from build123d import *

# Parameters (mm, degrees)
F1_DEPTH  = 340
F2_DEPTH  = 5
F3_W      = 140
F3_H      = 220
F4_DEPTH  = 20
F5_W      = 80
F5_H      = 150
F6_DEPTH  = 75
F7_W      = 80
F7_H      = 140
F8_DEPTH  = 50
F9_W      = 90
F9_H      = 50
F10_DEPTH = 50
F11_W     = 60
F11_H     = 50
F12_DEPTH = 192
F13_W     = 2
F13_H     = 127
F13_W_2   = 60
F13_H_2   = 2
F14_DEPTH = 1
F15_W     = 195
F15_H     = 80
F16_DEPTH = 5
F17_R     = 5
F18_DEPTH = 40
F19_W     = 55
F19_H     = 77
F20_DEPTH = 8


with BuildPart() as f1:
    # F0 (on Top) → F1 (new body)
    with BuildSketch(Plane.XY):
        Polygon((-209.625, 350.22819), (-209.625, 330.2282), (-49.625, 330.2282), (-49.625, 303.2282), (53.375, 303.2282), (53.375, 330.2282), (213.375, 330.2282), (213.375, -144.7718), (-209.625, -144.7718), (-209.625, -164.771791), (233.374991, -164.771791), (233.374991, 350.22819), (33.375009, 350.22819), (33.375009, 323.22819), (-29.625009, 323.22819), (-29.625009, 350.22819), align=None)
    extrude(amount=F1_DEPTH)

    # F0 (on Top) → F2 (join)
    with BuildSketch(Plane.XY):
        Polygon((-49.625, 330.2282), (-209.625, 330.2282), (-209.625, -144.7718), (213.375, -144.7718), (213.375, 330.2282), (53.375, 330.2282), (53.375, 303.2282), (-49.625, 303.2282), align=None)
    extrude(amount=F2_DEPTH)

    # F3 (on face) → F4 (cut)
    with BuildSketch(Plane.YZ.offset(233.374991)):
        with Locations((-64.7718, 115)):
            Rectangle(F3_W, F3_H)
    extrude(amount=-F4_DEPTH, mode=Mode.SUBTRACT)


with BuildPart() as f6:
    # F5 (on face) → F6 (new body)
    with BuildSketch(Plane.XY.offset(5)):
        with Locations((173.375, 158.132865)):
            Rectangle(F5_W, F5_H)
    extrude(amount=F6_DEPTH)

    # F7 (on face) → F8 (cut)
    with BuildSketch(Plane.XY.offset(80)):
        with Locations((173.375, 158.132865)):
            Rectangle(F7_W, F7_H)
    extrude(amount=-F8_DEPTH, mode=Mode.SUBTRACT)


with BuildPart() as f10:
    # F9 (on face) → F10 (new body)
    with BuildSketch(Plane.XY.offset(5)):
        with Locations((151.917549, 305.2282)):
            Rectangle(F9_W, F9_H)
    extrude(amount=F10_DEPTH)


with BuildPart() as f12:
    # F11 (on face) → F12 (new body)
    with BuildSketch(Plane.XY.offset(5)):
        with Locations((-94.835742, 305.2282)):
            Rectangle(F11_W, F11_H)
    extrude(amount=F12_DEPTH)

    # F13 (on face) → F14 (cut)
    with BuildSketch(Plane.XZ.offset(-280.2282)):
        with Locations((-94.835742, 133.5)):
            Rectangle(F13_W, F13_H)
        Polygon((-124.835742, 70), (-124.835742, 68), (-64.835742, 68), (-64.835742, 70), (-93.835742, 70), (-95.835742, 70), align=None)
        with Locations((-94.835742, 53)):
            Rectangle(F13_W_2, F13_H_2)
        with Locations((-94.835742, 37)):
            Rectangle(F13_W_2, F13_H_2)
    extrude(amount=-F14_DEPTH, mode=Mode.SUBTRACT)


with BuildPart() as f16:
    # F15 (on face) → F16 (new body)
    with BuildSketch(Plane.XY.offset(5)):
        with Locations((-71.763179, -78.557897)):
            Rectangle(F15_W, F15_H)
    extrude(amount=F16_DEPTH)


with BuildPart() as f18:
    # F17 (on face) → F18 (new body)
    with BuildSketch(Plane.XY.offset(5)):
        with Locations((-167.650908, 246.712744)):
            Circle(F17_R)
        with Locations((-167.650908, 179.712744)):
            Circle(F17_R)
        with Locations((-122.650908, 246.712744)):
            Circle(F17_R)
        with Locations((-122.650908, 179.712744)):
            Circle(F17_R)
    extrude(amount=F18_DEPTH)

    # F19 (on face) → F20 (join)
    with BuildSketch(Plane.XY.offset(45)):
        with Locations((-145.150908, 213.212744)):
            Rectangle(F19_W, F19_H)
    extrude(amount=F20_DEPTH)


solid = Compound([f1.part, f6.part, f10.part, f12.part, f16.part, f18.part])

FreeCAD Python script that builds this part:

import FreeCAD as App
import Part
import Sketcher

V = App.Vector
Q = App.Units.Quantity


def add_polygon(sketch, points):
    """Adds a closed chain of lines whose ends are joined by coincident constraints."""
    first, n = sketch.GeometryCount, len(points)
    for a, b in zip(points, points[1:] + points[:1]):
        sketch.addGeometry(Part.LineSegment(App.Vector(*a, 0), App.Vector(*b, 0)), False)
    for i in range(n):
        sketch.addConstraint(Sketcher.Constraint("Coincident", first + i, 2, first + (i + 1) % n, 1))

doc = App.newDocument("Part")
params = doc.addObject("Spreadsheet::Sheet", "Params")
for row, (alias, value) in enumerate([
    ("sketch1_width", "160 mm"),
    ("sketch1_width2", "103 mm"),
    ("sketch1_height", "27 mm"),
    ("sketch1_height2", "475 mm"),
    ("pad1_length", "340 mm"),
    ("sketch2_width", "160 mm"),
    ("sketch2_width2", "423 mm"),
    ("sketch2_height", "475 mm"),
    ("sketch2_height2", "27 mm"),
    ("pad2_length", "5 mm"),
    ("sketch3_width", "140 mm"),
    ("sketch3_height", "220 mm"),
    ("pocket1_length", "20 mm"),
    ("sketch4_width", "80 mm"),
    ("sketch4_height", "150 mm"),
    ("pad3_length", "75 mm"),
    ("sketch5_width", "80 mm"),
    ("sketch5_height", "140 mm"),
    ("pocket2_length", "50 mm"),
    ("sketch6_width", "90 mm"),
    ("sketch6_height", "50 mm"),
    ("pad4_length", "50 mm"),
    ("sketch7_width", "60 mm"),
    ("sketch7_height", "50 mm"),
    ("pad5_length", "192 mm"),
    ("sketch8_width", "29 mm"),
    ("sketch8_width2", "60 mm"),
    ("sketch8_height", "127 mm"),
    ("pocket3_length", "1 mm"),
    ("sketch9_width", "195 mm"),
    ("sketch9_height", "80 mm"),
    ("pad6_length", "5 mm"),
    ("sketch10_diameter", "10 mm"),
    ("pad7_length", "40 mm"),
    ("sketch11_width", "55 mm"),
    ("sketch11_height", "77 mm"),
    ("pad8_length", "8 mm"),
], start=1):
    params.set(f"A{row}", alias)
    params.set(f"B{row}", "=" + value)
    params.setAlias(f"B{row}", alias)

body = doc.addObject("PartDesign::Body", "Body")

sketch1 = body.newObject("Sketcher::SketchObject", "Sketch")
sketch1.AttachmentSupport = (doc.getObject("XY_Plane"), [""])
sketch1.MapMode = "FlatFace"
add_polygon(sketch1, [(-209.625, 350.22819), (-209.625, 330.2282), (-49.625, 330.2282), (-49.625, 303.2282), (53.375, 303.2282), (53.375, 330.2282), (213.375, 330.2282), (213.375, -144.7718), (-209.625, -144.7718), (-209.625, -164.771791), (233.374991, -164.771791), (233.374991, 350.22819), (33.375009, 350.22819), (33.375009, 323.22819), (-29.625009, 323.22819), (-29.625009, 350.22819)])
sketch1.addConstraint([
    Sketcher.Constraint("Vertical", 0),
    Sketcher.Constraint("Horizontal", 1),
    Sketcher.Constraint("Vertical", 2),
    Sketcher.Constraint("Horizontal", 3),
    Sketcher.Constraint("Vertical", 4),
    Sketcher.Constraint("Horizontal", 5),
    Sketcher.Constraint("Vertical", 6),
    Sketcher.Constraint("Horizontal", 7),
    Sketcher.Constraint("Vertical", 8),
    Sketcher.Constraint("Horizontal", 9),
    Sketcher.Constraint("Vertical", 10),
    Sketcher.Constraint("Horizontal", 11),
    Sketcher.Constraint("Vertical", 12),
    Sketcher.Constraint("Horizontal", 13),
    Sketcher.Constraint("Vertical", 14),
    Sketcher.Constraint("Horizontal", 15),
    Sketcher.Constraint("Horizontal", 1, 2, 4, 2),
    Sketcher.Constraint("Horizontal", 11, 2, 14, 2),
    Sketcher.Constraint("Vertical", 0, 2, 7, 2),
    Sketcher.Constraint("Equal", 1, 5),
    Sketcher.Constraint("Equal", 0, 8),
    Sketcher.Constraint("Equal", 4, 12),
    Sketcher.Constraint("DistanceX", 1, 1, 1, 2, Q("160 mm")),
    Sketcher.Constraint("DistanceX", 3, 1, 3, 2, Q("103 mm")),
    Sketcher.Constraint("DistanceY", 2, 2, 2, 1, Q("27 mm")),
    Sketcher.Constraint("DistanceY", 6, 2, 6, 1, Q("475 mm")),
    Sketcher.Constraint("DistanceX", 0, 2, -1, 1, Q("209.625 mm")),
    Sketcher.Constraint("DistanceX", 9, 1, 9, 2, Q("442.999991 mm")),
    Sketcher.Constraint("DistanceX", 11, 2, 11, 1, Q("199.999982 mm")),
    Sketcher.Constraint("DistanceX", 15, 2, 15, 1, Q("179.999991 mm")),
    Sketcher.Constraint("DistanceY", 0, 2, 0, 1, Q("19.99999 mm")),
    Sketcher.Constraint("DistanceY", -1, 1, 0, 2, Q("330.2282 mm")),
])
sketch1.setExpression("Constraints[38]", "Params.sketch1_width")
sketch1.setExpression("Constraints[39]", "Params.sketch1_width2")
sketch1.setExpression("Constraints[40]", "Params.sketch1_height")
sketch1.setExpression("Constraints[41]", "Params.sketch1_height2")
pad1 = body.newObject("PartDesign::Pad", "Pad")
pad1.Profile = sketch1
pad1.setExpression("Length", "Params.pad1_length")

sketch2 = body.newObject("Sketcher::SketchObject", "Sketch001")
sketch2.AttachmentSupport = (doc.getObject("XY_Plane"), [""])
sketch2.MapMode = "FlatFace"
add_polygon(sketch2, [(-49.625, 330.2282), (-209.625, 330.2282), (-209.625, -144.7718), (213.375, -144.7718), (213.375, 330.2282), (53.375, 330.2282), (53.375, 303.2282), (-49.625, 303.2282)])
sketch2.addConstraint([
    Sketcher.Constraint("Horizontal", 0),
    Sketcher.Constraint("Vertical", 1),
    Sketcher.Constraint("Horizontal", 2),
    Sketcher.Constraint("Vertical", 3),
    Sketcher.Constraint("Horizontal", 4),
    Sketcher.Constraint("Vertical", 5),
    Sketcher.Constraint("Horizontal", 6),
    Sketcher.Constraint("Vertical", 7),
    Sketcher.Constraint("Horizontal", 0, 2, 3, 2),
    Sketcher.Constraint("Equal", 0, 4),
    Sketcher.Constraint("DistanceX", 0, 2, 0, 1, Q("160 mm")),
    Sketcher.Constraint("DistanceX", 2, 1, 2, 2, Q("423 mm")),
    Sketcher.Constraint("DistanceY", 1, 2, 1, 1, Q("475 mm")),
    Sketcher.Constraint("DistanceY", 5, 2, 5, 1, Q("27 mm")),
    Sketcher.Constraint("DistanceX", 0, 2, -1, 1, Q("209.625 mm")),
    Sketcher.Constraint("DistanceY", -1, 1, 0, 2, Q("330.2282 mm")),
])
sketch2.setExpression("Constraints[18]", "Params.sketch2_width")
sketch2.setExpression("Constraints[19]", "Params.sketch2_width2")
sketch2.setExpression("Constraints[20]", "Params.sketch2_height")
sketch2.setExpression("Constraints[21]", "Params.sketch2_height2")
pad2 = body.newObject("PartDesign::Pad", "Pad001")
pad2.Profile = sketch2
pad2.setExpression("Length", "Params.pad2_length")

sketch3 = body.newObject("Sketcher::SketchObject", "Sketch002")
sketch3.AttachmentSupport = (doc.getObject("YZ_Plane"), [""])
sketch3.MapMode = "FlatFace"
sketch3.AttachmentOffset = App.Placement(V(0, 0, 233.374991), App.Rotation())
add_polygon(sketch3, [(-134.7718, 225), (-134.7718, 5), (5.2282, 5), (5.2282, 225)])
sketch3.addConstraint([
    Sketcher.Constraint("Vertical", 0),
    Sketcher.Constraint("Horizontal", 1),
    Sketcher.Constraint("Vertical", 2),
    Sketcher.Constraint("Horizontal", 3),
    Sketcher.Constraint("DistanceX", 1, 1, 1, 2, Q("140 mm")),
    Sketcher.Constraint("DistanceY", 0, 2, 0, 1, Q("220 mm")),
    Sketcher.Constraint("DistanceY", -1, 1, 0, 2, Q("5 mm")),
    Sketcher.Constraint("DistanceX", 0, 2, -1, 1, Q("134.7718 mm")),
])
sketch3.setExpression("Constraints[8]", "Params.sketch3_width")
sketch3.setExpression("Constraints[9]", "Params.sketch3_height")
pocket1 = body.newObject("PartDesign::Pocket", "Pocket")
pocket1.Profile = sketch3
pocket1.setExpression("Length", "Params.pocket1_length")
body2 = doc.addObject("PartDesign::Body", "Body001")

sketch4 = body2.newObject("Sketcher::SketchObject", "Sketch003")
sketch4.AttachmentSupport = (doc.getObject("XY_Plane001"), [""])
sketch4.MapMode = "FlatFace"
sketch4.AttachmentOffset = App.Placement(V(0, 0, 5), App.Rotation())
add_polygon(sketch4, [(133.375, 233.132865), (133.375, 83.132865), (213.375, 83.132865), (213.375, 233.132865)])
sketch4.addConstraint([
    Sketcher.Constraint("Vertical", 0),
    Sketcher.Constraint("Horizontal", 1),
    Sketcher.Constraint("Vertical", 2),
    Sketcher.Constraint("Horizontal", 3),
    Sketcher.Constraint("DistanceX", 1, 1, 1, 2, Q("80 mm")),
    Sketcher.Constraint("DistanceY", 0, 2, 0, 1, Q("150 mm")),
    Sketcher.Constraint("DistanceX", -1, 1, 0, 2, Q("133.375 mm")),
    Sketcher.Constraint("DistanceY", -1, 1, 0, 2, Q("83.132865 mm")),
])
sketch4.setExpression("Constraints[8]", "Params.sketch4_width")
sketch4.setExpression("Constraints[9]", "Params.sketch4_height")
pad3 = body2.newObject("PartDesign::Pad", "Pad002")
pad3.Profile = sketch4
pad3.setExpression("Length", "Params.pad3_length")

sketch5 = body2.newObject("Sketcher::SketchObject", "Sketch004")
sketch5.AttachmentSupport = (doc.getObject("XY_Plane001"), [""])
sketch5.MapMode = "FlatFace"
sketch5.AttachmentOffset = App.Placement(V(0, 0, 80), App.Rotation())
add_polygon(sketch5, [(133.375, 228.132865), (133.375, 88.132865), (213.375, 88.132865), (213.375, 228.132865)])
sketch5.addConstraint([
    Sketcher.Constraint("Vertical", 0),
    Sketcher.Constraint("Horizontal", 1),
    Sketcher.Constraint("Vertical", 2),
    Sketcher.Constraint("Horizontal", 3),
    Sketcher.Constraint("DistanceX", 1, 1, 1, 2, Q("80 mm")),
    Sketcher.Constraint("DistanceY", 0, 2, 0, 1, Q("140 mm")),
    Sketcher.Constraint("DistanceX", -1, 1, 0, 2, Q("133.375 mm")),
    Sketcher.Constraint("DistanceY", -1, 1, 0, 2, Q("88.132865 mm")),
])
sketch5.setExpression("Constraints[8]", "Params.sketch5_width")
sketch5.setExpression("Constraints[9]", "Params.sketch5_height")
pocket2 = body2.newObject("PartDesign::Pocket", "Pocket001")
pocket2.Profile = sketch5
pocket2.setExpression("Length", "Params.pocket2_length")
body3 = doc.addObject("PartDesign::Body", "Body002")

sketch6 = body3.newObject("Sketcher::SketchObject", "Sketch005")
sketch6.AttachmentSupport = (doc.getObject("XY_Plane002"), [""])
sketch6.MapMode = "FlatFace"
sketch6.AttachmentOffset = App.Placement(V(0, 0, 5), App.Rotation())
add_polygon(sketch6, [(106.917549, 330.2282), (106.917549, 280.2282), (196.917549, 280.2282), (196.917549, 330.2282)])
sketch6.addConstraint([
    Sketcher.Constraint("Vertical", 0),
    Sketcher.Constraint("Horizontal", 1),
    Sketcher.Constraint("Vertical", 2),
    Sketcher.Constraint("Horizontal", 3),
    Sketcher.Constraint("DistanceX", 1, 1, 1, 2, Q("90 mm")),
    Sketcher.Constraint("DistanceY", 0, 2, 0, 1, Q("50 mm")),
    Sketcher.Constraint("DistanceY", -1, 1, 0, 2, Q("280.2282 mm")),
    Sketcher.Constraint("DistanceX", -1, 1, 0, 2, Q("106.917549 mm")),
])
sketch6.setExpression("Constraints[8]", "Params.sketch6_width")
sketch6.setExpression("Constraints[9]", "Params.sketch6_height")
pad4 = body3.newObject("PartDesign::Pad", "Pad003")
pad4.Profile = sketch6
pad4.setExpression("Length", "Params.pad4_length")
body4 = doc.addObject("PartDesign::Body", "Body003")

sketch7 = body4.newObject("Sketcher::SketchObject", "Sketch006")
sketch7.AttachmentSupport = (doc.getObject("XY_Plane003"), [""])
sketch7.MapMode = "FlatFace"
sketch7.AttachmentOffset = App.Placement(V(0, 0, 5), App.Rotation())
add_polygon(sketch7, [(-124.835742, 330.2282), (-124.835742, 280.2282), (-64.835742, 280.2282), (-64.835742, 330.2282)])
sketch7.addConstraint([
    Sketcher.Constraint("Vertical", 0),
    Sketcher.Constraint("Horizontal", 1),
    Sketcher.Constraint("Vertical", 2),
    Sketcher.Constraint("Horizontal", 3),
    Sketcher.Constraint("DistanceX", 1, 1, 1, 2, Q("60 mm")),
    Sketcher.Constraint("DistanceY", 0, 2, 0, 1, Q("50 mm")),
    Sketcher.Constraint("DistanceY", -1, 1, 0, 2, Q("280.2282 mm")),
    Sketcher.Constraint("DistanceX", 0, 2, -1, 1, Q("124.835742 mm")),
])
sketch7.setExpression("Constraints[8]", "Params.sketch7_width")
sketch7.setExpression("Constraints[9]", "Params.sketch7_height")
pad5 = body4.newObject("PartDesign::Pad", "Pad004")
pad5.Profile = sketch7
pad5.setExpression("Length", "Params.pad5_length")

sketch8 = body4.newObject("Sketcher::SketchObject", "Sketch007")
sketch8.AttachmentSupport = (doc.getObject("XZ_Plane003"), [""])
sketch8.MapMode = "FlatFace"
sketch8.AttachmentOffset = App.Placement(V(0, 0, -280.2282), App.Rotation())
add_polygon(sketch8, [(-95.835742, 197), (-95.835742, 70), (-124.835742, 70), (-124.835742, 68), (-64.835742, 68), (-64.835742, 70), (-93.835742, 70), (-93.835742, 197)])
add_polygon(sketch8, [(-124.835742, 54), (-124.835742, 52), (-64.835742, 52), (-64.835742, 54)])
add_polygon(sketch8, [(-124.835742, 38), (-124.835742, 36), (-64.835742, 36), (-64.835742, 38)])
sketch8.addConstraint([
    Sketcher.Constraint("Vertical", 0),
    Sketcher.Constraint("Horizontal", 1),
    Sketcher.Constraint("Vertical", 2),
    Sketcher.Constraint("Horizontal", 3),
    Sketcher.Constraint("Vertical", 4),
    Sketcher.Constraint("Horizontal", 5),
    Sketcher.Constraint("Vertical", 6),
    Sketcher.Constraint("Horizontal", 7),
    Sketcher.Constraint("Vertical", 8),
    Sketcher.Constraint("Horizontal", 9),
    Sketcher.Constraint("Vertical", 10),
    Sketcher.Constraint("Horizontal", 11),
    Sketcher.Constraint("Vertical", 12),
    Sketcher.Constraint("Horizontal", 13),
    Sketcher.Constraint("Vertical", 14),
    Sketcher.Constraint("Horizontal", 15),
    Sketcher.Constraint("Horizontal", 1, 2, 4, 2),
    Sketcher.Constraint("Vertical", 2, 2, 8, 2),
    Sketcher.Constraint("Vertical", 4, 2, 9, 2),
    Sketcher.Constraint("Vertical", 11, 2, 12, 2),
    Sketcher.Constraint("Vertical", 10, 2, 13, 2),
    Sketcher.Constraint("Equal", 1, 5),
    Sketcher.Constraint("Equal", 7, 2),
    Sketcher.Constraint("Equal", 4, 8),
    Sketcher.Constraint("Equal", 10, 12),
    Sketcher.Constraint("DistanceX", 1, 2, 1, 1, Q("29 mm")),
    Sketcher.Constraint("DistanceX", 3, 1, 3, 2, Q("60 mm")),
    Sketcher.Constraint("DistanceY", 0, 2, 0, 1, Q("127 mm")),
    Sketcher.Constraint("DistanceY", -1, 1, 0, 2, Q("70 mm")),
    Sketcher.Constraint("DistanceY", -1, 1, 8, 2, Q("52 mm")),
    Sketcher.Constraint("DistanceY", -1, 1, 12, 2, Q("36 mm")),
    Sketcher.Constraint("DistanceX", 0, 2, -1, 1, Q("95.835742 mm")),
])
sketch8.setExpression("Constraints[41]", "Params.sketch8_width")
sketch8.setExpression("Constraints[42]", "Params.sketch8_width2")
sketch8.setExpression("Constraints[43]", "Params.sketch8_height")
pocket3 = body4.newObject("PartDesign::Pocket", "Pocket002")
pocket3.Profile = sketch8
pocket3.setExpression("Length", "Params.pocket3_length")
body5 = doc.addObject("PartDesign::Body", "Body004")

sketch9 = body5.newObject("Sketcher::SketchObject", "Sketch008")
sketch9.AttachmentSupport = (doc.getObject("XY_Plane004"), [""])
sketch9.MapMode = "FlatFace"
sketch9.AttachmentOffset = App.Placement(V(0, 0, 5), App.Rotation())
add_polygon(sketch9, [(-169.263179, -38.557897), (-169.263179, -118.557897), (25.736821, -118.557897), (25.736821, -38.557897)])
sketch9.addConstraint([
    Sketcher.Constraint("Vertical", 0),
    Sketcher.Constraint("Horizontal", 1),
    Sketcher.Constraint("Vertical", 2),
    Sketcher.Constraint("Horizontal", 3),
    Sketcher.Constraint("DistanceX", 1, 1, 1, 2, Q("195 mm")),
    Sketcher.Constraint("DistanceY", 0, 2, 0, 1, Q("80 mm")),
    Sketcher.Constraint("DistanceX", 0, 2, -1, 1, Q("169.263179 mm")),
    Sketcher.Constraint("DistanceY", 0, 2, -1, 1, Q("118.557897 mm")),
])
sketch9.setExpression("Constraints[8]", "Params.sketch9_width")
sketch9.setExpression("Constraints[9]", "Params.sketch9_height")
pad6 = body5.newObject("PartDesign::Pad", "Pad005")
pad6.Profile = sketch9
pad6.setExpression("Length", "Params.pad6_length")
body6 = doc.addObject("PartDesign::Body", "Body005")
body6.AllowCompound = True

sketch10 = body6.newObject("Sketcher::SketchObject", "Sketch009")
sketch10.AttachmentSupport = (doc.getObject("XY_Plane005"), [""])
sketch10.MapMode = "FlatFace"
sketch10.AttachmentOffset = App.Placement(V(0, 0, 5), App.Rotation())
sketch10.addGeometry([
    Part.Circle(V(-167.650908, 246.712744, 0), V(0, 0, 1), 5),
    Part.Circle(V(-167.650908, 179.712744, 0), V(0, 0, 1), 5),
    Part.Circle(V(-122.650908, 246.712744, 0), V(0, 0, 1), 5),
    Part.Circle(V(-122.650908, 179.712744, 0), V(0, 0, 1), 5),
], False)
sketch10.addConstraint([
    Sketcher.Constraint("Equal", 0, 1),
    Sketcher.Constraint("Equal", 1, 2),
    Sketcher.Constraint("Equal", 2, 3),
    Sketcher.Constraint("Horizontal", 0, 3, 2, 3),
    Sketcher.Constraint("Horizontal", 1, 3, 3, 3),
    Sketcher.Constraint("Vertical", 0, 3, 1, 3),
    Sketcher.Constraint("Vertical", 2, 3, 3, 3),
    Sketcher.Constraint("Diameter", 0, Q("10 mm")),
    Sketcher.Constraint("DistanceY", 1, 3, 0, 3, Q("67 mm")),
    Sketcher.Constraint("DistanceX", 0, 3, 2, 3, Q("45 mm")),
    Sketcher.Constraint("DistanceX", 2, 3, -1, 1, Q("122.650908 mm")),
    Sketcher.Constraint("DistanceY", -1, 1, 0, 3, Q("246.712744 mm")),
])
sketch10.setExpression("Constraints[7]", "Params.sketch10_diameter")
pad7 = body6.newObject("PartDesign::Pad", "Pad006")
pad7.Profile = sketch10
pad7.setExpression("Length", "Params.pad7_length")

sketch11 = body6.newObject("Sketcher::SketchObject", "Sketch010")
sketch11.AttachmentSupport = (doc.getObject("XY_Plane005"), [""])
sketch11.MapMode = "FlatFace"
sketch11.AttachmentOffset = App.Placement(V(0, 0, 45), App.Rotation())
add_polygon(sketch11, [(-172.650908, 251.712744), (-172.650908, 174.712744), (-117.650908, 174.712744), (-117.650908, 251.712744)])
sketch11.addConstraint([
    Sketcher.Constraint("Vertical", 0),
    Sketcher.Constraint("Horizontal", 1),
    Sketcher.Constraint("Vertical", 2),
    Sketcher.Constraint("Horizontal", 3),
    Sketcher.Constraint("DistanceX", 1, 1, 1, 2, Q("55 mm")),
    Sketcher.Constraint("DistanceY", 0, 2, 0, 1, Q("77 mm")),
    Sketcher.Constraint("DistanceX", 1, 2, -1, 1, Q("117.650908 mm")),
    Sketcher.Constraint("DistanceY", -1, 1, 0, 2, Q("174.712744 mm")),
])
sketch11.setExpression("Constraints[8]", "Params.sketch11_width")
sketch11.setExpression("Constraints[9]", "Params.sketch11_height")
pad8 = body6.newObject("PartDesign::Pad", "Pad007")
pad8.Profile = sketch11
pad8.setExpression("Length", "Params.pad8_length")

doc.recompute()
